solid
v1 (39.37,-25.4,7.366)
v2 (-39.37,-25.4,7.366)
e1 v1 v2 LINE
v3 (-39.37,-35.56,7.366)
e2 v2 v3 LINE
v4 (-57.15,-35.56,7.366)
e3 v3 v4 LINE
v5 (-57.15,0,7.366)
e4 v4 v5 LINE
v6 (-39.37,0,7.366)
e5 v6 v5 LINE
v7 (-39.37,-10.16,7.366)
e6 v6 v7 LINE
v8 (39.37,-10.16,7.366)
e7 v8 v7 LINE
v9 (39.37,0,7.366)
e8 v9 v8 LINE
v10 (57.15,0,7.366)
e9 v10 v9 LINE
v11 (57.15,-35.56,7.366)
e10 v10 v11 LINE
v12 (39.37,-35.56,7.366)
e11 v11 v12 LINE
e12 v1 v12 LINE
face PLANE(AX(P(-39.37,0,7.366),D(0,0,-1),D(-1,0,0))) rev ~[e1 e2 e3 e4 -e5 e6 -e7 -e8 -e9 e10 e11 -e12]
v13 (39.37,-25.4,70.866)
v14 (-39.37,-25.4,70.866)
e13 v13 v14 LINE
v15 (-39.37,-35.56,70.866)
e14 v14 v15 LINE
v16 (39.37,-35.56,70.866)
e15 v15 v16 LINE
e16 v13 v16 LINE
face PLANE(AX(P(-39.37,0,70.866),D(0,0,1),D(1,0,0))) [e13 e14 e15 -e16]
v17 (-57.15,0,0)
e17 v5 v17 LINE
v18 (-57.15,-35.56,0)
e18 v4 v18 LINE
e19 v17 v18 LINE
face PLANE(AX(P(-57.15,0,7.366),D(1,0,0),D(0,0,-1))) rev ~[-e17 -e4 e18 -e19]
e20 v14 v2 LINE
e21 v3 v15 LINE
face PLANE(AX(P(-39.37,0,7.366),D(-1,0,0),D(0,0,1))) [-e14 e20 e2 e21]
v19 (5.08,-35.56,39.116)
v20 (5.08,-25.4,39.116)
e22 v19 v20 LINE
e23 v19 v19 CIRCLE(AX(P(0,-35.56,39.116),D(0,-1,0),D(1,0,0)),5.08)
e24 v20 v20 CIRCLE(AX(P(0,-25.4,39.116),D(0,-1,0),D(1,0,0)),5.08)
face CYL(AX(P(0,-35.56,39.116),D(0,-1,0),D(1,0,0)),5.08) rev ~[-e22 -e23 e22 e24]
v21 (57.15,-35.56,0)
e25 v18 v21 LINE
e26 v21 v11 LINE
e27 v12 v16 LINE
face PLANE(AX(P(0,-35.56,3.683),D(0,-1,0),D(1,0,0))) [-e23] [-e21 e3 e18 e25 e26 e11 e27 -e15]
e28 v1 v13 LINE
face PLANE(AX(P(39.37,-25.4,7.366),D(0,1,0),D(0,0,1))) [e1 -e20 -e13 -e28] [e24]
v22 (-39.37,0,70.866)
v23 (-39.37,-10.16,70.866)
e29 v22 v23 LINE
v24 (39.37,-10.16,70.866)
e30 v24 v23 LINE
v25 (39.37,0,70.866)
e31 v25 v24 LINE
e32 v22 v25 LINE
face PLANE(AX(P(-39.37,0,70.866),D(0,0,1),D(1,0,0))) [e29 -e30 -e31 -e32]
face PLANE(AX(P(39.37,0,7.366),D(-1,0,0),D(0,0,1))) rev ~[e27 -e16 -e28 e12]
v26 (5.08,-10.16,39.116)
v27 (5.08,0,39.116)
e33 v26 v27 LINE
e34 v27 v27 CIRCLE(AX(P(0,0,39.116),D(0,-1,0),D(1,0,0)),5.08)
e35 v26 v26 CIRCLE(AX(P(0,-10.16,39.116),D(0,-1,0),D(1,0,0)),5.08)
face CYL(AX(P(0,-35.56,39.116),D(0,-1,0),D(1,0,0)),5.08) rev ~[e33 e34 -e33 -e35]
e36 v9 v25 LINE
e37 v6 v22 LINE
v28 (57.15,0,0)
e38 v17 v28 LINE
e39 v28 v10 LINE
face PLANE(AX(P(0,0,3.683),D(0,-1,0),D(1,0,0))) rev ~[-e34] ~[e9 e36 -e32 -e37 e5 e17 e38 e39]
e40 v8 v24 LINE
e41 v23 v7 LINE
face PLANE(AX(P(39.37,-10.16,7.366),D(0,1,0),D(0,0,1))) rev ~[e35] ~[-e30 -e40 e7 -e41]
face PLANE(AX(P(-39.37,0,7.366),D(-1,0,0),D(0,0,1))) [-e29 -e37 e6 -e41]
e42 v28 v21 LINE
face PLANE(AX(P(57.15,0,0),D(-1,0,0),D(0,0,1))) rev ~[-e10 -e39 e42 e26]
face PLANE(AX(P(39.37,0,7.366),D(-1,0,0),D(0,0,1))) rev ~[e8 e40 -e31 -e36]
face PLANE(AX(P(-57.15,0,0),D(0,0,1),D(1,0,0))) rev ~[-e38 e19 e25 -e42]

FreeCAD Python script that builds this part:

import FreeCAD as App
import Part
import Sketcher
from FreeCAD import Vector
Q = App.Units.Quantity

doc = App.newDocument("Part")
params = doc.addObject("Spreadsheet::Sheet", "Params")
for row, (alias, value) in enumerate([
    ("sketch1_width", "4.5 in"),
    ("sketch1_width2", "0.7 in"),
    ("sketch1_height", "2.5 in"),
    ("sketch1_height2", "0.29 in"),
    ("pad1_length", "1.4 in"),
    ("sketch2_width", "0.6 in"),
    ("sketch2_height", "2.5 in"),
    ("pocket1_length", "5 in"),
    ("sketch3_diameter", "0.4 in"),
    ("pocket2_length", "3 in"),
], start=1):
    params.set(f"A{row}", alias)
    params.set(f"B{row}", "=" + value)
    params.setAlias(f"B{row}", alias)

body = doc.addObject("PartDesign::Body", "Body")

# Sketch on XZ plane
sketch1 = body.newObject("Sketcher::SketchObject", "Sketch")
sketch1.AttachmentSupport = (doc.getObject("XZ_Plane"), [""])
sketch1.MapMode = "FlatFace"
sketch1.addGeometry([
    Part.LineSegment(Vector(-57, 7, 0), Vector(-57, 0, 0)),  # 0
    Part.LineSegment(Vector(-57, 0, 0), Vector(57, 0, 0)),  # 1
    Part.LineSegment(Vector(57, 0, 0), Vector(57, 7, 0)),  # 2
    Part.LineSegment(Vector(57, 7, 0), Vector(39, 7, 0)),  # 3
    Part.LineSegment(Vector(39, 7, 0), Vector(39, 71, 0)),  # 4
    Part.LineSegment(Vector(39, 71, 0), Vector(-39, 71, 0)),  # 5
    Part.LineSegment(Vector(-39, 71, 0), Vector(-39, 7, 0)),  # 6
    Part.LineSegment(Vector(-39, 7, 0), Vector(-57, 7, 0)),  # 7
], False)
sketch1.addConstraint([
    Sketcher.Constraint("Coincident", 0, 2, 1, 1),
    Sketcher.Constraint("Coincident", 1, 2, 2, 1),
    Sketcher.Constraint("Coincident", 2, 2, 3, 1),
    Sketcher.Constraint("Coincident", 3, 2, 4, 1),
    Sketcher.Constraint("Coincident", 4, 2, 5, 1),
    Sketcher.Constraint("Coincident", 5, 2, 6, 1),
    Sketcher.Constraint("Coincident", 6, 2, 7, 1),
    Sketcher.Constraint("Coincident", 7, 2, 0, 1),
    Sketcher.Constraint("Vertical", 0),
    Sketcher.Constraint("Horizontal", 1),
    Sketcher.Constraint("Vertical", 2),
    Sketcher.Constraint("Horizontal", 3),
    Sketcher.Constraint("Vertical", 4),
    Sketcher.Constraint("Horizontal", 5),
    Sketcher.Constraint("Vertical", 6),
    Sketcher.Constraint("Horizontal", 7),
    Sketcher.Constraint("Symmetric", 0, 2, 1, 2, -1, 1),
    Sketcher.Constraint("Symmetric", 3, 2, 6, 2, -2),
    Sketcher.Constraint("DistanceX", 1, 1, 1, 2, Q("4.5 in")),
    Sketcher.Constraint("DistanceX", 3, 2, 3, 1, Q("0.7 in")),
    Sketcher.Constraint("DistanceY", 4, 1, 4, 2, Q("2.5 in")),
    Sketcher.Constraint("DistanceY", 0, 2, 0, 1, Q("0.29 in")),
])
sketch1.setExpression("Constraints[18]", "Params.sketch1_width")
sketch1.setExpression("Constraints[19]", "Params.sketch1_width2")
sketch1.setExpression("Constraints[20]", "Params.sketch1_height")
sketch1.setExpression("Constraints[21]", "Params.sketch1_height2")
pad1 = body.newObject("PartDesign::Pad", "Pad")
pad1.Profile = sketch1
pad1.setExpression("Length", "Params.pad1_length")

# Sketch on YZ plane
sketch2 = body.newObject("Sketcher::SketchObject", "Sketch001")
sketch2.AttachmentSupport = (doc.getObject("YZ_Plane"), [""])
sketch2.MapMode = "FlatFace"
sketch2.AttachmentOffset = App.Placement(Vector(0, 0, 1.55 * 25.4), App.Rotation())
sketch2.addGeometry([
    Part.LineSegment(Vector(-25, 71, 0), Vector(-25, 7, 0)),
    Part.LineSegment(Vector(-25, 7, 0), Vector(-10, 7, 0)),
    Part.LineSegment(Vector(-10, 7, 0), Vector(-10, 71, 0)),
    Part.LineSegment(Vector(-10, 71, 0), Vector(-25, 71, 0)),
], False)
sketch2.addConstraint([
    Sketcher.Constraint("Coincident", 0, 2, 1, 1),
    Sketcher.Constraint("Coincident", 1, 2, 2, 1),
    Sketcher.Constraint("Coincident", 2, 2, 3, 1),
    Sketcher.Constraint("Coincident", 3, 2, 0, 1),
    Sketcher.Constraint("Vertical", 0),
    Sketcher.Constraint("Horizontal", 1),
    Sketcher.Constraint("Vertical", 2),
    Sketcher.Constraint("Horizontal", 3),
    Sketcher.Constraint("DistanceX", 1, 1, 1, 2, Q("0.6 in")),
    Sketcher.Constraint("DistanceY", 0, 2, 0, 1, Q("2.5 in")),
    Sketcher.Constraint("DistanceX", 0, 2, -1, 1, Q("1 in")),
    Sketcher.Constraint("DistanceY", -1, 1, 0, 2, Q("0.29 in")),
])
sketch2.setExpression("Constraints[8]", "Params.sketch2_width")
sketch2.setExpression("Constraints[9]", "Params.sketch2_height")
pocket1 = body.newObject("PartDesign::Pocket", "Pocket")
pocket1.Profile = sketch2
pocket1.setExpression("Length", "Params.pocket1_length")

# Sketch on XZ plane
sketch3 = body.newObject("Sketcher::SketchObject", "Sketch002")
sketch3.AttachmentSupport = (doc.getObject("XZ_Plane"), [""])
sketch3.MapMode = "FlatFace"
sketch3.AttachmentOffset = App.Placement(Vector(0, 0, 1.4 * 25.4), App.Rotation())
sketch3.addGeometry(Part.Circle(Vector(0, 39, 0), Vector(0, 0, 1), 5), False)
sketch3.addConstraint([
    Sketcher.Constraint("PointOnObject", 0, 3, -2),
    Sketcher.Constraint("Diameter", 0, Q("0.4 in")),
    Sketcher.Constraint("DistanceY", -1, 1, 0, 3, Q("1.54 in")),
])
sketch3.setExpression("Constraints[1]", "Params.sketch3_diameter")
pocket2 = body.newObject("PartDesign::Pocket", "Pocket001")
pocket2.Profile = sketch3
pocket2.setExpression("Length", "Params.pocket2_length")

doc.recompute()
